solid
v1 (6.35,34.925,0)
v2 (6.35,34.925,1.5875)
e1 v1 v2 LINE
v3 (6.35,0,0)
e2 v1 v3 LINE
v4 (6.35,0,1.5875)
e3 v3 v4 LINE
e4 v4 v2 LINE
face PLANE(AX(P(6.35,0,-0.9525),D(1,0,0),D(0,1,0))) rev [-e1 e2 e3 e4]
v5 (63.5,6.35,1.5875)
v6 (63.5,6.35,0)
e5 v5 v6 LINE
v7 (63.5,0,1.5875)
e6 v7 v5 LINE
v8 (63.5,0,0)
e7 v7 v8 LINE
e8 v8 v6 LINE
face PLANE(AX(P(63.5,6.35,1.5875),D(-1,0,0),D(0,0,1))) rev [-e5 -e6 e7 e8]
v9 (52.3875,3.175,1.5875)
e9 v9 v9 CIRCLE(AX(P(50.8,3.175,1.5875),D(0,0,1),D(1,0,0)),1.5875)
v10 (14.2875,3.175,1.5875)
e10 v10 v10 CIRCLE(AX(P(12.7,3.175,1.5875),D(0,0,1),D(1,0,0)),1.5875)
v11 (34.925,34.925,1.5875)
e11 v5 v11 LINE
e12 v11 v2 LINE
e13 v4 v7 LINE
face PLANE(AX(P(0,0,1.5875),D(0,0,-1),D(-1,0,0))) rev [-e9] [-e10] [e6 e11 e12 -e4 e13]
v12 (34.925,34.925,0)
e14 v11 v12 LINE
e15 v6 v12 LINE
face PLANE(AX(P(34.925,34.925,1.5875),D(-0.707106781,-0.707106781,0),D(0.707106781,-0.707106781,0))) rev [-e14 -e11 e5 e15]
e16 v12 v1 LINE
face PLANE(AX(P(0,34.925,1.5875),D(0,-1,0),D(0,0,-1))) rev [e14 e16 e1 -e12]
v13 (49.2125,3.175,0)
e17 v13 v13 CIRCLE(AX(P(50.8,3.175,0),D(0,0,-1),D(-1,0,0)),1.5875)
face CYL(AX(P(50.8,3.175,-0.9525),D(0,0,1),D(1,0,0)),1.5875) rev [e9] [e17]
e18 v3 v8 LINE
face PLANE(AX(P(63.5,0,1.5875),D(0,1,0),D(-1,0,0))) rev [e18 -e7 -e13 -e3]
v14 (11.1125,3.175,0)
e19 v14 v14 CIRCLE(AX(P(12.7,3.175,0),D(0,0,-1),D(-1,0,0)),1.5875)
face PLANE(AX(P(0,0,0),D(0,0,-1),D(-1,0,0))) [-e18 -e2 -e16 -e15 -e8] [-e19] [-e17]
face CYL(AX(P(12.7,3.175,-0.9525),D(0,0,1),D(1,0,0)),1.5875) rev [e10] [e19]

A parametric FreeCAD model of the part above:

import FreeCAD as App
import Part
import Sketcher
Q = App.Units.Quantity


def add_polygon(sketch, points):
    """Adds a closed chain of lines whose ends are joined by coincident constraints."""
    first, n = sketch.GeometryCount, len(points)
    for a, b in zip(points, points[1:] + points[:1]):
        sketch.addGeometry(Part.LineSegment(App.Vector(*a, 0), App.Vector(*b, 0)), False)
    for i in range(n):
        sketch.addConstraint(Sketcher.Constraint("Coincident", first + i, 2, first + (i + 1) % n, 1))

doc = App.newDocument("Part")
body = doc.addObject("PartDesign::Body", "Body")

# Sketch on XY plane
sketch1 = body.newObject("Sketcher::SketchObject", "Sketch")
sketch1.AttachmentSupport = (doc.getObject("XY_Plane"), [""])
sketch1.MapMode = "FlatFace"
add_polygon(sketch1, [(0, 34.925), (0, 0), (63.5, 0), (63.5, 6.35), (34.925, 34.925)])  # lines 0-4
sketch1.addConstraint([
    Sketcher.Constraint("Vertical", 0),
    Sketcher.Constraint("Horizontal", 1),
    Sketcher.Constraint("Vertical", 2),
    Sketcher.Constraint("Horizontal", 4),
    Sketcher.Constraint("Coincident", 0, 2, -1, 1),
    Sketcher.Constraint("Equal", 4, 0),
    Sketcher.Constraint("DistanceX", 1, 1, 1, 2, Q("2.5 in")),
    Sketcher.Constraint("Angle", 3, Q("135 deg")),
    Sketcher.Constraint("DistanceY", 2, 1, 2, 2, Q("0.25 in")),
])
pad1 = body.newObject("PartDesign::Pad", "Pad")
pad1.Profile = sketch1
pad1.Length = Q("0.0625 in")

# Sketch on XY plane
sketch2 = body.newObject("Sketcher::SketchObject", "Sketch001")
sketch2.AttachmentSupport = (doc.getObject("XY_Plane"), [""])
sketch2.MapMode = "FlatFace"
sketch2.AttachmentOffset = App.Placement(App.Vector(0, 0, 0.0625 * 25.4), App.Rotation())
sketch2.addGeometry(Part.Circle(App.Vector(12.7, 3.175, 0), App.Vector(0, 0, 1), 1.5875), False)
sketch2.addConstraint([
    Sketcher.Constraint("Diameter", 0, Q("0.125 in")),
    Sketcher.Constraint("DistanceX", -1, 1, 0, 3, Q("0.5 in")),
    Sketcher.Constraint("DistanceY", -1, 1, 0, 3, Q("0.125 in")),
])
pocket1 = body.newObject("PartDesign::Pocket", "Pocket")
pocket1.Profile = sketch2
pocket1.Length = Q("0.1 in")
doc.recompute()

linearpattern = body.newObject("PartDesign::LinearPattern", "LinearPattern")
linearpattern.Originals = [pocket1]
linearpattern.Direction = (doc.getObject("X_Axis"), [""])
linearpattern.Mode = "offset"
linearpattern.Offset = Q("1.5 in")
linearpattern.Occurrences = 2
body.Tip = linearpattern

# Sketch on XY plane
sketch3 = body.newObject("Sketcher::SketchObject", "Sketch002")
sketch3.AttachmentSupport = (doc.getObject("XY_Plane"), [""])
sketch3.MapMode = "FlatFace"
sketch3.AttachmentOffset = App.Placement(App.Vector(0, 0, 0.0625 * 25.4), App.Rotation())
add_polygon(sketch3, [(0, 34.925), (0, 0), (6.35, 0), (6.35, 34.925)])  # lines 0-3
sketch3.addConstraint([
    Sketcher.Constraint("Vertical", 0),
    Sketcher.Constraint("Horizontal", 1),
    Sketcher.Constraint("Vertical", 2),
    Sketcher.Constraint("Horizontal", 3),
    Sketcher.Constraint("Coincident", 0, 2, -1, 1),
    Sketcher.Constraint("DistanceX", 1, 1, 1, 2, Q("0.25 in")),
    Sketcher.Constraint("DistanceY", 0, 2, 0, 1, Q("1.375 in")),
])
pocket2 = body.newObject("PartDesign::Pocket", "Pocket001")
pocket2.Profile = sketch3
pocket2.Length = Q("0.1 in")

doc.recompute()
